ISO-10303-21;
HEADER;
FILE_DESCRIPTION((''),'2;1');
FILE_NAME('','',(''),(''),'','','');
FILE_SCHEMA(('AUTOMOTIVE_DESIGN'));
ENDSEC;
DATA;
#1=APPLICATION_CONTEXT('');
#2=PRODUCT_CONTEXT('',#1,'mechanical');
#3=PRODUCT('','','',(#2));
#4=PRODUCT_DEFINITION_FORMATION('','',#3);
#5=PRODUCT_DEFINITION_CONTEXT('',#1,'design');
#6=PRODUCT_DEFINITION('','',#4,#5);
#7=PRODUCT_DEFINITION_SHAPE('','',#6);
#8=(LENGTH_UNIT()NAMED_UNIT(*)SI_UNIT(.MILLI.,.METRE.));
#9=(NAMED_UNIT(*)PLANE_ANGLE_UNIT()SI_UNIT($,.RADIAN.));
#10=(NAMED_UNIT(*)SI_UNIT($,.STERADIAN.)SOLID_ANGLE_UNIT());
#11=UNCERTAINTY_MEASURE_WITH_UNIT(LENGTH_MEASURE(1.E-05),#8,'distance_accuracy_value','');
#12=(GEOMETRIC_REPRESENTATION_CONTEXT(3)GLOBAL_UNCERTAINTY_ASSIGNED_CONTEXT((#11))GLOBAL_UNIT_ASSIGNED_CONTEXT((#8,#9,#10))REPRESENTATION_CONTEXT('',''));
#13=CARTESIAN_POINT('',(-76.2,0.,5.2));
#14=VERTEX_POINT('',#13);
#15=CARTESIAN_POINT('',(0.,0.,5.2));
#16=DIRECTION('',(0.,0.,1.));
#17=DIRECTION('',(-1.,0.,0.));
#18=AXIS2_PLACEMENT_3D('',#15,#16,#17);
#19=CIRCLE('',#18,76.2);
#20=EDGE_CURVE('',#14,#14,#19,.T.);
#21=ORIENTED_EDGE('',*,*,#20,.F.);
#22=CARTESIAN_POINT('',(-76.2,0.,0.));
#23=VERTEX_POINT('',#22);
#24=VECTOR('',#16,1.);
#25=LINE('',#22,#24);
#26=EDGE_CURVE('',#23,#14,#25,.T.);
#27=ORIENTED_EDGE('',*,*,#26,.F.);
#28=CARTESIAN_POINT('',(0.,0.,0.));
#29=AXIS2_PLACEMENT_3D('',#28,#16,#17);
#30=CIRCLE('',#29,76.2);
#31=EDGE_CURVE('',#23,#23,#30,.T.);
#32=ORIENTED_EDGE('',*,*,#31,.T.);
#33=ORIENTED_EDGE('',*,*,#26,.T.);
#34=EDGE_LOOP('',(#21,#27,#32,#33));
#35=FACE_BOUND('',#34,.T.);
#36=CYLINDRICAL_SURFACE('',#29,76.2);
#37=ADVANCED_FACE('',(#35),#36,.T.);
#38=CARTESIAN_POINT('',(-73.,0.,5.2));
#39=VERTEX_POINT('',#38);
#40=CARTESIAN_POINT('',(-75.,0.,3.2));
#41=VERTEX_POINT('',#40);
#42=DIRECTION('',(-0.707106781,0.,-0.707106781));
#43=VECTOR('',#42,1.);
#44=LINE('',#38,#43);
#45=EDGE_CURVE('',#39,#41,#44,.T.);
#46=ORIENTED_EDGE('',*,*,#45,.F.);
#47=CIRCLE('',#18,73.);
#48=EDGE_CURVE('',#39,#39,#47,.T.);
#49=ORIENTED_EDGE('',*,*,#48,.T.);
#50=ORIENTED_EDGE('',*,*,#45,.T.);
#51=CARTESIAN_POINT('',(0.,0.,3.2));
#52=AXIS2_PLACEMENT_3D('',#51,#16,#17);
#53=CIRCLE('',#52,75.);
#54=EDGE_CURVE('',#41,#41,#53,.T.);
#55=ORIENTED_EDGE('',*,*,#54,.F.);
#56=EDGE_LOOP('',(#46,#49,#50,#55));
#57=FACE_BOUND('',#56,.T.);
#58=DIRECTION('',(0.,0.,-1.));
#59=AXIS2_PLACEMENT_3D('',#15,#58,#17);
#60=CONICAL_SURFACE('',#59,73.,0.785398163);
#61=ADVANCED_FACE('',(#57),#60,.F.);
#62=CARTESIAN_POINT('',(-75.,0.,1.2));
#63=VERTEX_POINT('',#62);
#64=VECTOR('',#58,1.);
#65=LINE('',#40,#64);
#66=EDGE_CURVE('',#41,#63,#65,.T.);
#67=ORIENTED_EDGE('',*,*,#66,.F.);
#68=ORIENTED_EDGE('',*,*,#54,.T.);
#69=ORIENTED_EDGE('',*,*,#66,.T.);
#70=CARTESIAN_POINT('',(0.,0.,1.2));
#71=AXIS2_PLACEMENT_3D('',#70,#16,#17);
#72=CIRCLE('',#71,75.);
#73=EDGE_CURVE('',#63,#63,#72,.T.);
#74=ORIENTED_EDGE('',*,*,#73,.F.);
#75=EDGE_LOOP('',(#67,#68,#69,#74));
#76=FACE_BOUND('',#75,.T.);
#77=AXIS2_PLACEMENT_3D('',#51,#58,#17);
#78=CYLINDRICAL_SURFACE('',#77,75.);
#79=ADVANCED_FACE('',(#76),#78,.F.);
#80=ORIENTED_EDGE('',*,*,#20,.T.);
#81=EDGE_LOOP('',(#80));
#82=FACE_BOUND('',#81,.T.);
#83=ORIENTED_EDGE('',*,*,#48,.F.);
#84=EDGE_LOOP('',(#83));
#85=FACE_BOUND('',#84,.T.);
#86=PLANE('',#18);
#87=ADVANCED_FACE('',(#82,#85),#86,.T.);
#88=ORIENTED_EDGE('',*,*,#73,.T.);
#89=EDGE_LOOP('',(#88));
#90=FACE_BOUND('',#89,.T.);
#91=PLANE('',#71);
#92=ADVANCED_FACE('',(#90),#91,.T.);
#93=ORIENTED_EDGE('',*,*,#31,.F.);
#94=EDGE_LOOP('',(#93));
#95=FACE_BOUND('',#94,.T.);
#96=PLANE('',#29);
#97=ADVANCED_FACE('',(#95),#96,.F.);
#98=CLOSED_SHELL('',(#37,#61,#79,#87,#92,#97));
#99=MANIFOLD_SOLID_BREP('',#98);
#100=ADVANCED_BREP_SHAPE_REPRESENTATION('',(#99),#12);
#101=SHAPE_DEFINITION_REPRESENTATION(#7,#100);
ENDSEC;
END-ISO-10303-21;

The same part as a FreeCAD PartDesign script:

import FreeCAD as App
import Part
import Sketcher

V = App.Vector
Q = App.Units.Quantity

doc = App.newDocument("Part")
body = doc.addObject("PartDesign::Body", "Body")

# Sketch on XZ plane
sketch1 = body.newObject("Sketcher::SketchObject", "Sketch")
sketch1.AttachmentSupport = (doc.getObject("XZ_Plane"), [""])
sketch1.MapMode = "FlatFace"
sketch1.addGeometry(Part.LineSegment(V(0, 0, 0), V(0, 1.2, 0)), False)
sketch1.addGeometry(Part.LineSegment(V(0, 1.2, 0), V(-75, 1.2, 0)), False)
sketch1.addGeometry(Part.LineSegment(V(-75, 1.2, 0), V(-75, 3.2, 0)), False)
sketch1.addGeometry(Part.LineSegment(V(-75, 3.2, 0), V(-73, 5.2, 0)), False)
sketch1.addGeometry(Part.LineSegment(V(-73, 5.2, 0), V(-76.2, 5.2, 0)), False)
sketch1.addGeometry(Part.LineSegment(V(-76.2, 5.2, 0), V(-76.2, 0, 0)), False)
sketch1.addGeometry(Part.LineSegment(V(-76.2, 0, 0), V(0, 0, 0)), False)
sketch1.addConstraint(Sketcher.Constraint("Coincident", 0, 2, 1, 1))
sketch1.addConstraint(Sketcher.Constraint("Coincident", 1, 2, 2, 1))
sketch1.addConstraint(Sketcher.Constraint("Coincident", 2, 2, 3, 1))
sketch1.addConstraint(Sketcher.Constraint("Coincident", 3, 2, 4, 1))
sketch1.addConstraint(Sketcher.Constraint("Coincident", 4, 2, 5, 1))
sketch1.addConstraint(Sketcher.Constraint("Coincident", 5, 2, 6, 1))
sketch1.addConstraint(Sketcher.Constraint("Coincident", 6, 2, 0, 1))
sketch1.addConstraint(Sketcher.Constraint("Vertical", 0))
sketch1.addConstraint(Sketcher.Constraint("Horizontal", 1))
sketch1.addConstraint(Sketcher.Constraint("Vertical", 2))
sketch1.addConstraint(Sketcher.Constraint("Horizontal", 4))
sketch1.addConstraint(Sketcher.Constraint("Vertical", 5))
sketch1.addConstraint(Sketcher.Constraint("Horizontal", 6))
sketch1.addConstraint(Sketcher.Constraint("Coincident", 6, 2, -1, 1))
sketch1.addConstraint(Sketcher.Constraint("DistanceX", 1, 2, 1, 1, Q("75 mm")))
sketch1.addConstraint(Sketcher.Constraint("DistanceY", 2, 1, 2, 2, Q("2 mm")))
sketch1.addConstraint(Sketcher.Constraint("Angle", 3, Q("45 deg")))
sketch1.addConstraint(Sketcher.Constraint("DistanceX", 4, 2, 4, 1, Q("3.2 mm")))
sketch1.addConstraint(Sketcher.Constraint("DistanceX", 6, 1, 6, 2, Q("76.2 mm")))
sketch1.addConstraint(Sketcher.Constraint("DistanceY", 0, 1, 0, 2, Q("1.2 mm")))
revolution = body.newObject("PartDesign::Revolution", "Revolution")
revolution.Profile = sketch1
revolution.ReferenceAxis = (sketch1, ["V_Axis"])
revolution.Angle = 360

doc.recompute()
